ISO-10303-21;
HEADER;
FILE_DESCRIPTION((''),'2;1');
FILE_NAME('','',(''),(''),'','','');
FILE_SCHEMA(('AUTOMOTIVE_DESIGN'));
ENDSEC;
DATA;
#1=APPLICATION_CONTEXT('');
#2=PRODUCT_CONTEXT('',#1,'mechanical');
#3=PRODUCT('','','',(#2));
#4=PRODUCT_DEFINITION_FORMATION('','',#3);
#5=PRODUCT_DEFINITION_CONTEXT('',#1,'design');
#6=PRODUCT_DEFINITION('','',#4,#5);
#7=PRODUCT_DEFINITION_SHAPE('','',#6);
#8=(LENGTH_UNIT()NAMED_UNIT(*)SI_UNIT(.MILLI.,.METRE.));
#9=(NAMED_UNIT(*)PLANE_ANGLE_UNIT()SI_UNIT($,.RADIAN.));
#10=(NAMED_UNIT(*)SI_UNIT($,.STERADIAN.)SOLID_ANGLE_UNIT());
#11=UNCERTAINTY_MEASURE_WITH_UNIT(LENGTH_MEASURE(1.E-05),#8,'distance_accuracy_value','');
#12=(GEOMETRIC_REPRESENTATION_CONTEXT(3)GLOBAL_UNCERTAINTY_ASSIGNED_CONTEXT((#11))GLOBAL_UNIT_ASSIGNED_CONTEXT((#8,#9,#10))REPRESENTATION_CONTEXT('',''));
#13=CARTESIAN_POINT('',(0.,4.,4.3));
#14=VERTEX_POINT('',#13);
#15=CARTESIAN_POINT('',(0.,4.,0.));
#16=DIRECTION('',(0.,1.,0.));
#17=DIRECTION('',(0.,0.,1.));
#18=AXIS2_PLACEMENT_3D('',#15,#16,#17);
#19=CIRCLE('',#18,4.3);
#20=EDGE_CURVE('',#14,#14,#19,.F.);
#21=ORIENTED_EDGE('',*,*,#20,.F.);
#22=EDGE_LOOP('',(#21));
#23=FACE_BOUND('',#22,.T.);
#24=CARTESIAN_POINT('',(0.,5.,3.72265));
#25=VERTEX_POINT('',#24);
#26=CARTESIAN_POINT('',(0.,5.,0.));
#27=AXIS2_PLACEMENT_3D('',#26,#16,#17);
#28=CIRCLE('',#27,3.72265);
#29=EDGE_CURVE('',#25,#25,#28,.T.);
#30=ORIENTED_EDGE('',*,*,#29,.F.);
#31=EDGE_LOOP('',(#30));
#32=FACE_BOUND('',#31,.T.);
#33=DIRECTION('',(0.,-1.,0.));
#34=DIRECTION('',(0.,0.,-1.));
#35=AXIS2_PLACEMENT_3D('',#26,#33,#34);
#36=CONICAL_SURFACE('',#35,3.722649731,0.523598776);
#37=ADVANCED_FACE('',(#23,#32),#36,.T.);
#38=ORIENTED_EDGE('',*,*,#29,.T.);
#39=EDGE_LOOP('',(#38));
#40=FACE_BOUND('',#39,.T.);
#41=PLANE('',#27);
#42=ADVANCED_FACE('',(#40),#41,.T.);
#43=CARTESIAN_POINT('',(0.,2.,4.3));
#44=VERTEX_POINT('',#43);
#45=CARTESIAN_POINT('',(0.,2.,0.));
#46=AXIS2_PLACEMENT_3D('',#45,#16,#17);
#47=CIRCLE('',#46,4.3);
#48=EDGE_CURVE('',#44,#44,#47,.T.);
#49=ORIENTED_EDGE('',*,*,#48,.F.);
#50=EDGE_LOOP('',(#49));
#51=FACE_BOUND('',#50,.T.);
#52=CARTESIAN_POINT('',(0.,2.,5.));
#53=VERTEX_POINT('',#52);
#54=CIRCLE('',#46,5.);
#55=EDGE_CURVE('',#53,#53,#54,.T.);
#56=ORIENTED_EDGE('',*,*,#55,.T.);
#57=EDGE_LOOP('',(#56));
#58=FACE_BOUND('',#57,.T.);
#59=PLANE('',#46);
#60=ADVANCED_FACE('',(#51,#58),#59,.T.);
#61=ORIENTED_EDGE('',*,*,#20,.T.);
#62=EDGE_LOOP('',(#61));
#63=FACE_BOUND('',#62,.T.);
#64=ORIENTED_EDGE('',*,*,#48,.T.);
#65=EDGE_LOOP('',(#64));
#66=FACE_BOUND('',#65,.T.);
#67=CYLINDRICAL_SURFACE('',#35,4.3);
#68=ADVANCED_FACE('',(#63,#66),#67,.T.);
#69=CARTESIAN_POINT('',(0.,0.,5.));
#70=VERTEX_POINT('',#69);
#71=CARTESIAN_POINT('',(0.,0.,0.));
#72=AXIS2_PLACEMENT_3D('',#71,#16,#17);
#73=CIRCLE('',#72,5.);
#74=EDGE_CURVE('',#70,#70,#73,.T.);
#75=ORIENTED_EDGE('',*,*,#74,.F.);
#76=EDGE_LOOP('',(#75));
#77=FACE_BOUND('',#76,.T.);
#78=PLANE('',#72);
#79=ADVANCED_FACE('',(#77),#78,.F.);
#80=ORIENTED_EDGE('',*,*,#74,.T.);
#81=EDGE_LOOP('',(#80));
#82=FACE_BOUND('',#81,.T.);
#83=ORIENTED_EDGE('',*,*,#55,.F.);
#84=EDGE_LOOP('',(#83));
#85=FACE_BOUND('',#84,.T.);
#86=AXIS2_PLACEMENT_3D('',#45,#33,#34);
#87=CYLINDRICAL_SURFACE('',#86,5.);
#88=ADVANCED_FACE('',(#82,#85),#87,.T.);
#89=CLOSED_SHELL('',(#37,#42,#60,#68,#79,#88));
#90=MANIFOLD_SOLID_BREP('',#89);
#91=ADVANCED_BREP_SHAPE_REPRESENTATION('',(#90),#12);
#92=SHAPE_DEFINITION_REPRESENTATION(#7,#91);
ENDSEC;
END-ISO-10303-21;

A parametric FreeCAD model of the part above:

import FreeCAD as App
import Part
import Sketcher


def edges_at(feature, points):
    """Names of the edges that pass closest to the given points."""
    edges = feature.Shape.Edges
    near = lambda p: min(range(len(edges)), key=lambda i: edges[i].distToShape(Part.Vertex(*p))[0])
    return sorted({f"Edge{near(p) + 1}" for p in points})

doc = App.newDocument("Part")
body = doc.addObject("PartDesign::Body", "Body")

# Sketch on XZ plane
sketch1 = doc.addObject("Sketcher::SketchObject", "Sketch")
body.addObject(sketch1)
sketch1.AttachmentSupport = (doc.XZ_Plane, [""])
sketch1.MapMode = "FlatFace"
sketch1.addGeometry(Part.Circle(App.Vector(0, 0, 0), App.Vector(0, 0, 1), 5), False)
sketch1.addConstraint(Sketcher.Constraint("Coincident", 0, 3, -1, 1))
sketch1.addConstraint(Sketcher.Constraint("Diameter", 0, 10.0))
pad1 = doc.addObject("PartDesign::Pad", "Pad")
body.addObject(pad1)
pad1.Profile = sketch1
pad1.Length = 2
pad1.Reversed = True

# Sketch on XZ plane
sketch2 = doc.addObject("Sketcher::SketchObject", "Sketch001")
body.addObject(sketch2)
sketch2.AttachmentSupport = (doc.XZ_Plane, [""])
sketch2.MapMode = "FlatFace"
sketch2.AttachmentOffset = App.Placement(App.Vector(0, 0, -2), App.Rotation())
sketch2.addGeometry(Part.Circle(App.Vector(0, 0, 0), App.Vector(0, 0, 1), 4.3), False)
sketch2.addConstraint(Sketcher.Constraint("Coincident", 0, 3, -1, 1))
sketch2.addConstraint(Sketcher.Constraint("Diameter", 0, 8.6))
pad2 = doc.addObject("PartDesign::Pad", "Pad001")
body.addObject(pad2)
pad2.Profile = sketch2
pad2.Length = 3
pad2.Reversed = True
doc.recompute()

chamfer = doc.addObject("PartDesign::Chamfer", "Chamfer")
body.addObject(chamfer)
chamfer.Base = (pad2, edges_at(pad2, [(-4.3, 5, 0)]))
chamfer.ChamferType = "Two distances"
chamfer.Size = 1
chamfer.Size2 = 0.57735

doc.recompute()
